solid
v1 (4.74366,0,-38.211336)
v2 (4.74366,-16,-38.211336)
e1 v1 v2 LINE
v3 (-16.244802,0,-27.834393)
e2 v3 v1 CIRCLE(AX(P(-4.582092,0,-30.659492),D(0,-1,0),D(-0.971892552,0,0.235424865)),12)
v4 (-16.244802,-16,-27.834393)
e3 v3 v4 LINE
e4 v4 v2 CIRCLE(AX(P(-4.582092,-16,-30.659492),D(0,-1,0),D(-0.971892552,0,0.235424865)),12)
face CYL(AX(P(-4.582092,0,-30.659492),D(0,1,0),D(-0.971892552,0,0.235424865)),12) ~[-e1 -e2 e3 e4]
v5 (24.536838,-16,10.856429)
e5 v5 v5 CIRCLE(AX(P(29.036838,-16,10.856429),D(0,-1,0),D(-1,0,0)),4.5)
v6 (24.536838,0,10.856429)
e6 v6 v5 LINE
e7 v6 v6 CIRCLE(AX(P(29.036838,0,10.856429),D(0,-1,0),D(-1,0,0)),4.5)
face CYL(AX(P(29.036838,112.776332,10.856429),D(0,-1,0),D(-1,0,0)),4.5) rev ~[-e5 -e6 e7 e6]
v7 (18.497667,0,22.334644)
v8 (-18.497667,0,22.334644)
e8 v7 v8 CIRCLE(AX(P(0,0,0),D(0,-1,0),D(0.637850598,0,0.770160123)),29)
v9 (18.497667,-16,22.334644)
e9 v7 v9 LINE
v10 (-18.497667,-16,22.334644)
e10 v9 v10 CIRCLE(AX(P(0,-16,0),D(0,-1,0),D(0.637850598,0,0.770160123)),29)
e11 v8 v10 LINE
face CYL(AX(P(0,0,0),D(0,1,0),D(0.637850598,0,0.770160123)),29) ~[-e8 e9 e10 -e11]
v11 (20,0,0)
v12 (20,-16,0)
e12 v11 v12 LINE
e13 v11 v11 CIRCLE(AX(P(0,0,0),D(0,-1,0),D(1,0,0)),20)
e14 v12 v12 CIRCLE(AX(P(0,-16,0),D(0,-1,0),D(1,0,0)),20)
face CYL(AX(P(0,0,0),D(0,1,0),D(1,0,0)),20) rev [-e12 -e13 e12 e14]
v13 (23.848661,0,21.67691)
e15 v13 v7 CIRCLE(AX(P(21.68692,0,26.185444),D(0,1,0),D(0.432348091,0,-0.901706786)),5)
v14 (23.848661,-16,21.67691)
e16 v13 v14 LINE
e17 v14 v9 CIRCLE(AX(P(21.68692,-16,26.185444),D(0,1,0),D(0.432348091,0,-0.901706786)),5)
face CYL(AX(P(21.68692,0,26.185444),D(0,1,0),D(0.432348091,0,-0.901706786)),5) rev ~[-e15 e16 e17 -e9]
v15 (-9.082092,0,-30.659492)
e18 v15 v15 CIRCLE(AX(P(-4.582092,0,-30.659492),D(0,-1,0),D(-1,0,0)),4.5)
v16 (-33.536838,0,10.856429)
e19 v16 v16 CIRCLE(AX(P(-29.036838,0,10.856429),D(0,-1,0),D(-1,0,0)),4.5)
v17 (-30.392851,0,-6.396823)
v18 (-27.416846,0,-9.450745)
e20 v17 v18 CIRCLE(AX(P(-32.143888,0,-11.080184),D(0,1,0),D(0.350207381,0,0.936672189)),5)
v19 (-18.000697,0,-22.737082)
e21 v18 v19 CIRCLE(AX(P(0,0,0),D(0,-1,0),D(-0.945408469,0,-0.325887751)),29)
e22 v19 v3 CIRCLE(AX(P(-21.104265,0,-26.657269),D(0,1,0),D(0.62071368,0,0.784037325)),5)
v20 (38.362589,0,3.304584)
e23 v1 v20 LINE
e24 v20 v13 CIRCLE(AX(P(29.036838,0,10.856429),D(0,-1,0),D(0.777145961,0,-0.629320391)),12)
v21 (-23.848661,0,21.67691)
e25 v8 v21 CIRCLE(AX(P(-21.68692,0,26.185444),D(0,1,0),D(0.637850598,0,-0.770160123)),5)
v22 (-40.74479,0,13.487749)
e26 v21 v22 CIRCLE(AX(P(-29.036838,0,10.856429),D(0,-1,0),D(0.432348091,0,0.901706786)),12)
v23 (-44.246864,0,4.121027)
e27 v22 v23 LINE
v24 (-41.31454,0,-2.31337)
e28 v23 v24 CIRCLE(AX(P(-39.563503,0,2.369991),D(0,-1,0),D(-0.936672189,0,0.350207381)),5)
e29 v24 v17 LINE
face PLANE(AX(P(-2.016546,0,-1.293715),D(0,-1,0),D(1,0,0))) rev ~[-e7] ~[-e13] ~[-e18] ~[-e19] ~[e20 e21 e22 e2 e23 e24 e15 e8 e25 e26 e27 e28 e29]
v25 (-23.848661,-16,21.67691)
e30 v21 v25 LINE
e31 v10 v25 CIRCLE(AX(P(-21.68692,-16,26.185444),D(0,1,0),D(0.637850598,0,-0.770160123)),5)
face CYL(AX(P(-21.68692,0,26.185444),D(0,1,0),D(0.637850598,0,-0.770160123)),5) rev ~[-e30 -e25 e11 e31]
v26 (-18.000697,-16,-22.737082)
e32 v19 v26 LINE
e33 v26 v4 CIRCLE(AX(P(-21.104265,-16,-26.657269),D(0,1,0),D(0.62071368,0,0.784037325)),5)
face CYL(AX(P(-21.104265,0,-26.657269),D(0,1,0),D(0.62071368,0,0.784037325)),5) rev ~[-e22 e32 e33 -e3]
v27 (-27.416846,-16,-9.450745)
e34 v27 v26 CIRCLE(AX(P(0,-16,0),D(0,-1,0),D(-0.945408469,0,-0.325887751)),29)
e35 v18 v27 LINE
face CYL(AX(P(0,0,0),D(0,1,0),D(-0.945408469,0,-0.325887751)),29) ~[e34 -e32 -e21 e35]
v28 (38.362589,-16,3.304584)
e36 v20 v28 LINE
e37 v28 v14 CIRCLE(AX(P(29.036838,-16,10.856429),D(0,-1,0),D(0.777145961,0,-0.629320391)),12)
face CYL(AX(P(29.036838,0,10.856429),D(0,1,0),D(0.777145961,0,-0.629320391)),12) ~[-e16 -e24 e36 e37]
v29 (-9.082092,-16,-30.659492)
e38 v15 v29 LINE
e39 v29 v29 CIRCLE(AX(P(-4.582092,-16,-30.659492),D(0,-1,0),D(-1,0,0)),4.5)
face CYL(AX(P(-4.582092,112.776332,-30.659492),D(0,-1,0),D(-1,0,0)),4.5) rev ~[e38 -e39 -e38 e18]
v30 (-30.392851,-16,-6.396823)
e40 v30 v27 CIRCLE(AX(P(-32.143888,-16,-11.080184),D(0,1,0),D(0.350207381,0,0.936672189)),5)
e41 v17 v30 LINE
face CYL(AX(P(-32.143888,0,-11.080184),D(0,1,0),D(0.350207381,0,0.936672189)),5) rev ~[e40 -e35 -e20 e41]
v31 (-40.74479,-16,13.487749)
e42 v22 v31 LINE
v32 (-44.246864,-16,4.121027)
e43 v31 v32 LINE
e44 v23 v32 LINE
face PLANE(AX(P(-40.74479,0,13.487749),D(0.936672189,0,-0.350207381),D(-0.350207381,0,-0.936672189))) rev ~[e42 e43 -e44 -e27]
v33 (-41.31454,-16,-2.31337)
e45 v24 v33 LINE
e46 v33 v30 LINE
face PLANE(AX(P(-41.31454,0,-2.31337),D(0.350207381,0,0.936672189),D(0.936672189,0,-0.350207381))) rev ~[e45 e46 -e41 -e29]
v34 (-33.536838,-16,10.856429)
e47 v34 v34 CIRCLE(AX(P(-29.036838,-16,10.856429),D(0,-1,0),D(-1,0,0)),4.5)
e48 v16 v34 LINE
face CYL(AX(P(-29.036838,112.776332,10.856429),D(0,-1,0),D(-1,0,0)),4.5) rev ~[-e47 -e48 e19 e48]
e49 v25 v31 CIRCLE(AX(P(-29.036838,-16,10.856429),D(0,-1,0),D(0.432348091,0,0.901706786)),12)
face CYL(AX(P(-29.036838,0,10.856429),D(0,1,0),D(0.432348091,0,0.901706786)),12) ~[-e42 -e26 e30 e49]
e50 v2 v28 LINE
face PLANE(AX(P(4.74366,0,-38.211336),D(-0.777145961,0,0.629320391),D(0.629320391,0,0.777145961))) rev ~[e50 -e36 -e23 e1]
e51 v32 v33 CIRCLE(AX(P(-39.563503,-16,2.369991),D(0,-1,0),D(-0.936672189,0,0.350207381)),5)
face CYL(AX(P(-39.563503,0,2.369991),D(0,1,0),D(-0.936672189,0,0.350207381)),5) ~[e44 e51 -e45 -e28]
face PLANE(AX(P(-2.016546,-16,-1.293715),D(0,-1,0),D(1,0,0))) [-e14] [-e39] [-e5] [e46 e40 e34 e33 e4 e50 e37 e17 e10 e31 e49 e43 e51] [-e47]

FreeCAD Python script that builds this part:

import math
import FreeCAD as App
import Part
import Sketcher

V = App.Vector
Q = App.Units.Quantity

doc = App.newDocument("Part")
body = doc.addObject("PartDesign::Body", "Body")

# Sketch on XZ plane
sketch1 = doc.addObject("Sketcher::SketchObject", "Sketch")
body.addObject(sketch1)
sketch1.AttachmentSupport = (doc.XZ_Plane, [""])
sketch1.MapMode = "FlatFace"
sketch1.addGeometry([
    Part.ArcOfCircle(Part.Circle(V(-32.1, -11.1, 0), V(0, 0, 1), 5), math.radians(19), math.radians(70)),  # 0
    Part.ArcOfCircle(Part.Circle(V(0, 0, 0), V(0, 0, 1), 29), math.radians(-161), math.radians(-128)),  # 1
    Part.ArcOfCircle(Part.Circle(V(-21.1, -26.7, 0), V(0, 0, 1), 5), math.radians(-14), math.radians(52)),  # 2
    Part.ArcOfCircle(Part.Circle(V(-4.6, -30.7, 0), V(0, 0, 1), 12), math.radians(166), math.radians(321)),  # 3
    Part.LineSegment(V(4.7, -38.2, 0), V(38.4, 3.3, 0)),  # 4
    Part.ArcOfCircle(Part.Circle(V(29, 10.9, 0), V(0, 0, 1), 12), math.radians(-39), math.radians(116)),  # 5
    Part.ArcOfCircle(Part.Circle(V(21.7, 26.2, 0), V(0, 0, 1), 5), math.radians(-130), math.radians(-64)),  # 6
    Part.ArcOfCircle(Part.Circle(V(0, 0, 0), V(0, 0, 1), 29), math.radians(50), math.radians(130)),  # 7
    Part.ArcOfCircle(Part.Circle(V(-21.7, 26.2, 0), V(0, 0, 1), 5), math.radians(-116), math.radians(-50)),  # 8
    Part.ArcOfCircle(Part.Circle(V(-29, 10.9, 0), V(0, 0, 1), 12), math.radians(64), math.radians(167)),  # 9
    Part.LineSegment(V(-40.7, 13.5, 0), V(-44.2, 4.1, 0)),  # 10
    Part.ArcOfCircle(Part.Circle(V(-39.6, 2.4, 0), V(0, 0, 1), 5), math.radians(159), math.radians(250)),  # 11
    Part.LineSegment(V(-41.3, -2.3, 0), V(-30.4, -6.4, 0)),  # 12
    Part.Circle(V(0, 0, 0), V(0, 0, 1), 20),  # 13
], False)
sketch1.addConstraint([
    Sketcher.Constraint("Tangent", 0, 1, 1, 1),
    Sketcher.Constraint("Tangent", 1, 2, 2, 2),
    Sketcher.Constraint("Tangent", 2, 1, 3, 1),
    Sketcher.Constraint("Tangent", 3, 2, 4, 1),
    Sketcher.Constraint("Tangent", 4, 2, 5, 1),
    Sketcher.Constraint("Tangent", 5, 2, 6, 2),
    Sketcher.Constraint("Tangent", 6, 1, 7, 1),
    Sketcher.Constraint("Tangent", 7, 2, 8, 2),
    Sketcher.Constraint("Tangent", 8, 1, 9, 1),
    Sketcher.Constraint("Coincident", 9, 2, 10, 1),
    Sketcher.Constraint("Tangent", 10, 2, 11, 1),
    Sketcher.Constraint("Tangent", 11, 2, 12, 1),
    Sketcher.Constraint("Tangent", 12, 2, 0, 2),
    Sketcher.Constraint("Coincident", 1, 3, -1, 1),
    Sketcher.Constraint("Coincident", 7, 3, -1, 1),
    Sketcher.Constraint("Coincident", 13, 3, -1, 1),
    Sketcher.Constraint("Equal", 0, 2),
    Sketcher.Constraint("Equal", 3, 5),
    Sketcher.Constraint("Equal", 2, 6),
    Sketcher.Constraint("Equal", 1, 7),
    Sketcher.Constraint("Equal", 6, 8),
    Sketcher.Constraint("Equal", 5, 9),
    Sketcher.Constraint("Equal", 8, 11),
    Sketcher.Constraint("Symmetric", 5, 3, 9, 3, -2),
    Sketcher.Constraint("Perpendicular", 10, 12),
    Sketcher.Constraint("Diameter", 13, Q("40 mm")),
    Sketcher.Constraint("Radius", 0, Q("5 mm")),
    Sketcher.Constraint("Radius", 1, Q("29 mm")),
    Sketcher.Constraint("Radius", 3, Q("12 mm")),
    Sketcher.Constraint("Angle", 4, Q("51 deg")),
    Sketcher.Constraint("Distance", 10, Q("10 mm")),
    Sketcher.Constraint("Angle", 10, Q("-110.5 deg")),
    Sketcher.Constraint("DistanceY", 1, 2, 0, 3, Q("11.656899 mm")),
    Sketcher.Constraint("DistanceY", 3, 3, 2, 1, Q("2.825098 mm")),
    Sketcher.Constraint("DistanceY", 6, 1, 6, 3, Q("3.850801 mm")),
    Sketcher.Constraint("DistanceY", 10, 2, 9, 3, Q("6.735401 mm")),
])
pad1 = doc.addObject("PartDesign::Pad", "Pad")
body.addObject(pad1)
pad1.Profile = sketch1
pad1.Length = 16

# Sketch on XZ plane
sketch2 = doc.addObject("Sketcher::SketchObject", "Sketch001")
body.addObject(sketch2)
sketch2.AttachmentSupport = (doc.XZ_Plane, [""])
sketch2.MapMode = "FlatFace"
sketch2.addGeometry([
    Part.Circle(V(29, 10.9, 0), V(0, 0, 1), 4.5),
    Part.Circle(V(-29, 10.9, 0), V(0, 0, 1), 4.5),
    Part.Circle(V(-4.6, -30.7, 0), V(0, 0, 1), 4.5),
], False)
sketch2.addConstraint([
    Sketcher.Constraint("Equal", 0, 1),
    Sketcher.Constraint("Equal", 1, 2),
    Sketcher.Constraint("Symmetric", 0, 3, 1, 3, -2),
    Sketcher.Constraint("Diameter", 0, Q("9 mm")),
    Sketcher.Constraint("DistanceY", -1, 1, 0, 3, Q("10.856429 mm")),
    Sketcher.Constraint("DistanceX", 2, 3, -1, 1, Q("4.582092 mm")),
    Sketcher.Constraint("DistanceY", 2, 3, -1, 1, Q("30.659492 mm")),
    Sketcher.Constraint("DistanceX", 2, 3, 0, 3, Q("33.61893 mm")),
])
doc.recompute()
hole = doc.addObject("PartDesign::Hole", "Hole")
body.addObject(hole)
hole.Profile = sketch2
hole.ThreadType = "None"
hole.Diameter = 9
hole.DepthType = "ThroughAll"
hole.Reversed = True

doc.recompute()
